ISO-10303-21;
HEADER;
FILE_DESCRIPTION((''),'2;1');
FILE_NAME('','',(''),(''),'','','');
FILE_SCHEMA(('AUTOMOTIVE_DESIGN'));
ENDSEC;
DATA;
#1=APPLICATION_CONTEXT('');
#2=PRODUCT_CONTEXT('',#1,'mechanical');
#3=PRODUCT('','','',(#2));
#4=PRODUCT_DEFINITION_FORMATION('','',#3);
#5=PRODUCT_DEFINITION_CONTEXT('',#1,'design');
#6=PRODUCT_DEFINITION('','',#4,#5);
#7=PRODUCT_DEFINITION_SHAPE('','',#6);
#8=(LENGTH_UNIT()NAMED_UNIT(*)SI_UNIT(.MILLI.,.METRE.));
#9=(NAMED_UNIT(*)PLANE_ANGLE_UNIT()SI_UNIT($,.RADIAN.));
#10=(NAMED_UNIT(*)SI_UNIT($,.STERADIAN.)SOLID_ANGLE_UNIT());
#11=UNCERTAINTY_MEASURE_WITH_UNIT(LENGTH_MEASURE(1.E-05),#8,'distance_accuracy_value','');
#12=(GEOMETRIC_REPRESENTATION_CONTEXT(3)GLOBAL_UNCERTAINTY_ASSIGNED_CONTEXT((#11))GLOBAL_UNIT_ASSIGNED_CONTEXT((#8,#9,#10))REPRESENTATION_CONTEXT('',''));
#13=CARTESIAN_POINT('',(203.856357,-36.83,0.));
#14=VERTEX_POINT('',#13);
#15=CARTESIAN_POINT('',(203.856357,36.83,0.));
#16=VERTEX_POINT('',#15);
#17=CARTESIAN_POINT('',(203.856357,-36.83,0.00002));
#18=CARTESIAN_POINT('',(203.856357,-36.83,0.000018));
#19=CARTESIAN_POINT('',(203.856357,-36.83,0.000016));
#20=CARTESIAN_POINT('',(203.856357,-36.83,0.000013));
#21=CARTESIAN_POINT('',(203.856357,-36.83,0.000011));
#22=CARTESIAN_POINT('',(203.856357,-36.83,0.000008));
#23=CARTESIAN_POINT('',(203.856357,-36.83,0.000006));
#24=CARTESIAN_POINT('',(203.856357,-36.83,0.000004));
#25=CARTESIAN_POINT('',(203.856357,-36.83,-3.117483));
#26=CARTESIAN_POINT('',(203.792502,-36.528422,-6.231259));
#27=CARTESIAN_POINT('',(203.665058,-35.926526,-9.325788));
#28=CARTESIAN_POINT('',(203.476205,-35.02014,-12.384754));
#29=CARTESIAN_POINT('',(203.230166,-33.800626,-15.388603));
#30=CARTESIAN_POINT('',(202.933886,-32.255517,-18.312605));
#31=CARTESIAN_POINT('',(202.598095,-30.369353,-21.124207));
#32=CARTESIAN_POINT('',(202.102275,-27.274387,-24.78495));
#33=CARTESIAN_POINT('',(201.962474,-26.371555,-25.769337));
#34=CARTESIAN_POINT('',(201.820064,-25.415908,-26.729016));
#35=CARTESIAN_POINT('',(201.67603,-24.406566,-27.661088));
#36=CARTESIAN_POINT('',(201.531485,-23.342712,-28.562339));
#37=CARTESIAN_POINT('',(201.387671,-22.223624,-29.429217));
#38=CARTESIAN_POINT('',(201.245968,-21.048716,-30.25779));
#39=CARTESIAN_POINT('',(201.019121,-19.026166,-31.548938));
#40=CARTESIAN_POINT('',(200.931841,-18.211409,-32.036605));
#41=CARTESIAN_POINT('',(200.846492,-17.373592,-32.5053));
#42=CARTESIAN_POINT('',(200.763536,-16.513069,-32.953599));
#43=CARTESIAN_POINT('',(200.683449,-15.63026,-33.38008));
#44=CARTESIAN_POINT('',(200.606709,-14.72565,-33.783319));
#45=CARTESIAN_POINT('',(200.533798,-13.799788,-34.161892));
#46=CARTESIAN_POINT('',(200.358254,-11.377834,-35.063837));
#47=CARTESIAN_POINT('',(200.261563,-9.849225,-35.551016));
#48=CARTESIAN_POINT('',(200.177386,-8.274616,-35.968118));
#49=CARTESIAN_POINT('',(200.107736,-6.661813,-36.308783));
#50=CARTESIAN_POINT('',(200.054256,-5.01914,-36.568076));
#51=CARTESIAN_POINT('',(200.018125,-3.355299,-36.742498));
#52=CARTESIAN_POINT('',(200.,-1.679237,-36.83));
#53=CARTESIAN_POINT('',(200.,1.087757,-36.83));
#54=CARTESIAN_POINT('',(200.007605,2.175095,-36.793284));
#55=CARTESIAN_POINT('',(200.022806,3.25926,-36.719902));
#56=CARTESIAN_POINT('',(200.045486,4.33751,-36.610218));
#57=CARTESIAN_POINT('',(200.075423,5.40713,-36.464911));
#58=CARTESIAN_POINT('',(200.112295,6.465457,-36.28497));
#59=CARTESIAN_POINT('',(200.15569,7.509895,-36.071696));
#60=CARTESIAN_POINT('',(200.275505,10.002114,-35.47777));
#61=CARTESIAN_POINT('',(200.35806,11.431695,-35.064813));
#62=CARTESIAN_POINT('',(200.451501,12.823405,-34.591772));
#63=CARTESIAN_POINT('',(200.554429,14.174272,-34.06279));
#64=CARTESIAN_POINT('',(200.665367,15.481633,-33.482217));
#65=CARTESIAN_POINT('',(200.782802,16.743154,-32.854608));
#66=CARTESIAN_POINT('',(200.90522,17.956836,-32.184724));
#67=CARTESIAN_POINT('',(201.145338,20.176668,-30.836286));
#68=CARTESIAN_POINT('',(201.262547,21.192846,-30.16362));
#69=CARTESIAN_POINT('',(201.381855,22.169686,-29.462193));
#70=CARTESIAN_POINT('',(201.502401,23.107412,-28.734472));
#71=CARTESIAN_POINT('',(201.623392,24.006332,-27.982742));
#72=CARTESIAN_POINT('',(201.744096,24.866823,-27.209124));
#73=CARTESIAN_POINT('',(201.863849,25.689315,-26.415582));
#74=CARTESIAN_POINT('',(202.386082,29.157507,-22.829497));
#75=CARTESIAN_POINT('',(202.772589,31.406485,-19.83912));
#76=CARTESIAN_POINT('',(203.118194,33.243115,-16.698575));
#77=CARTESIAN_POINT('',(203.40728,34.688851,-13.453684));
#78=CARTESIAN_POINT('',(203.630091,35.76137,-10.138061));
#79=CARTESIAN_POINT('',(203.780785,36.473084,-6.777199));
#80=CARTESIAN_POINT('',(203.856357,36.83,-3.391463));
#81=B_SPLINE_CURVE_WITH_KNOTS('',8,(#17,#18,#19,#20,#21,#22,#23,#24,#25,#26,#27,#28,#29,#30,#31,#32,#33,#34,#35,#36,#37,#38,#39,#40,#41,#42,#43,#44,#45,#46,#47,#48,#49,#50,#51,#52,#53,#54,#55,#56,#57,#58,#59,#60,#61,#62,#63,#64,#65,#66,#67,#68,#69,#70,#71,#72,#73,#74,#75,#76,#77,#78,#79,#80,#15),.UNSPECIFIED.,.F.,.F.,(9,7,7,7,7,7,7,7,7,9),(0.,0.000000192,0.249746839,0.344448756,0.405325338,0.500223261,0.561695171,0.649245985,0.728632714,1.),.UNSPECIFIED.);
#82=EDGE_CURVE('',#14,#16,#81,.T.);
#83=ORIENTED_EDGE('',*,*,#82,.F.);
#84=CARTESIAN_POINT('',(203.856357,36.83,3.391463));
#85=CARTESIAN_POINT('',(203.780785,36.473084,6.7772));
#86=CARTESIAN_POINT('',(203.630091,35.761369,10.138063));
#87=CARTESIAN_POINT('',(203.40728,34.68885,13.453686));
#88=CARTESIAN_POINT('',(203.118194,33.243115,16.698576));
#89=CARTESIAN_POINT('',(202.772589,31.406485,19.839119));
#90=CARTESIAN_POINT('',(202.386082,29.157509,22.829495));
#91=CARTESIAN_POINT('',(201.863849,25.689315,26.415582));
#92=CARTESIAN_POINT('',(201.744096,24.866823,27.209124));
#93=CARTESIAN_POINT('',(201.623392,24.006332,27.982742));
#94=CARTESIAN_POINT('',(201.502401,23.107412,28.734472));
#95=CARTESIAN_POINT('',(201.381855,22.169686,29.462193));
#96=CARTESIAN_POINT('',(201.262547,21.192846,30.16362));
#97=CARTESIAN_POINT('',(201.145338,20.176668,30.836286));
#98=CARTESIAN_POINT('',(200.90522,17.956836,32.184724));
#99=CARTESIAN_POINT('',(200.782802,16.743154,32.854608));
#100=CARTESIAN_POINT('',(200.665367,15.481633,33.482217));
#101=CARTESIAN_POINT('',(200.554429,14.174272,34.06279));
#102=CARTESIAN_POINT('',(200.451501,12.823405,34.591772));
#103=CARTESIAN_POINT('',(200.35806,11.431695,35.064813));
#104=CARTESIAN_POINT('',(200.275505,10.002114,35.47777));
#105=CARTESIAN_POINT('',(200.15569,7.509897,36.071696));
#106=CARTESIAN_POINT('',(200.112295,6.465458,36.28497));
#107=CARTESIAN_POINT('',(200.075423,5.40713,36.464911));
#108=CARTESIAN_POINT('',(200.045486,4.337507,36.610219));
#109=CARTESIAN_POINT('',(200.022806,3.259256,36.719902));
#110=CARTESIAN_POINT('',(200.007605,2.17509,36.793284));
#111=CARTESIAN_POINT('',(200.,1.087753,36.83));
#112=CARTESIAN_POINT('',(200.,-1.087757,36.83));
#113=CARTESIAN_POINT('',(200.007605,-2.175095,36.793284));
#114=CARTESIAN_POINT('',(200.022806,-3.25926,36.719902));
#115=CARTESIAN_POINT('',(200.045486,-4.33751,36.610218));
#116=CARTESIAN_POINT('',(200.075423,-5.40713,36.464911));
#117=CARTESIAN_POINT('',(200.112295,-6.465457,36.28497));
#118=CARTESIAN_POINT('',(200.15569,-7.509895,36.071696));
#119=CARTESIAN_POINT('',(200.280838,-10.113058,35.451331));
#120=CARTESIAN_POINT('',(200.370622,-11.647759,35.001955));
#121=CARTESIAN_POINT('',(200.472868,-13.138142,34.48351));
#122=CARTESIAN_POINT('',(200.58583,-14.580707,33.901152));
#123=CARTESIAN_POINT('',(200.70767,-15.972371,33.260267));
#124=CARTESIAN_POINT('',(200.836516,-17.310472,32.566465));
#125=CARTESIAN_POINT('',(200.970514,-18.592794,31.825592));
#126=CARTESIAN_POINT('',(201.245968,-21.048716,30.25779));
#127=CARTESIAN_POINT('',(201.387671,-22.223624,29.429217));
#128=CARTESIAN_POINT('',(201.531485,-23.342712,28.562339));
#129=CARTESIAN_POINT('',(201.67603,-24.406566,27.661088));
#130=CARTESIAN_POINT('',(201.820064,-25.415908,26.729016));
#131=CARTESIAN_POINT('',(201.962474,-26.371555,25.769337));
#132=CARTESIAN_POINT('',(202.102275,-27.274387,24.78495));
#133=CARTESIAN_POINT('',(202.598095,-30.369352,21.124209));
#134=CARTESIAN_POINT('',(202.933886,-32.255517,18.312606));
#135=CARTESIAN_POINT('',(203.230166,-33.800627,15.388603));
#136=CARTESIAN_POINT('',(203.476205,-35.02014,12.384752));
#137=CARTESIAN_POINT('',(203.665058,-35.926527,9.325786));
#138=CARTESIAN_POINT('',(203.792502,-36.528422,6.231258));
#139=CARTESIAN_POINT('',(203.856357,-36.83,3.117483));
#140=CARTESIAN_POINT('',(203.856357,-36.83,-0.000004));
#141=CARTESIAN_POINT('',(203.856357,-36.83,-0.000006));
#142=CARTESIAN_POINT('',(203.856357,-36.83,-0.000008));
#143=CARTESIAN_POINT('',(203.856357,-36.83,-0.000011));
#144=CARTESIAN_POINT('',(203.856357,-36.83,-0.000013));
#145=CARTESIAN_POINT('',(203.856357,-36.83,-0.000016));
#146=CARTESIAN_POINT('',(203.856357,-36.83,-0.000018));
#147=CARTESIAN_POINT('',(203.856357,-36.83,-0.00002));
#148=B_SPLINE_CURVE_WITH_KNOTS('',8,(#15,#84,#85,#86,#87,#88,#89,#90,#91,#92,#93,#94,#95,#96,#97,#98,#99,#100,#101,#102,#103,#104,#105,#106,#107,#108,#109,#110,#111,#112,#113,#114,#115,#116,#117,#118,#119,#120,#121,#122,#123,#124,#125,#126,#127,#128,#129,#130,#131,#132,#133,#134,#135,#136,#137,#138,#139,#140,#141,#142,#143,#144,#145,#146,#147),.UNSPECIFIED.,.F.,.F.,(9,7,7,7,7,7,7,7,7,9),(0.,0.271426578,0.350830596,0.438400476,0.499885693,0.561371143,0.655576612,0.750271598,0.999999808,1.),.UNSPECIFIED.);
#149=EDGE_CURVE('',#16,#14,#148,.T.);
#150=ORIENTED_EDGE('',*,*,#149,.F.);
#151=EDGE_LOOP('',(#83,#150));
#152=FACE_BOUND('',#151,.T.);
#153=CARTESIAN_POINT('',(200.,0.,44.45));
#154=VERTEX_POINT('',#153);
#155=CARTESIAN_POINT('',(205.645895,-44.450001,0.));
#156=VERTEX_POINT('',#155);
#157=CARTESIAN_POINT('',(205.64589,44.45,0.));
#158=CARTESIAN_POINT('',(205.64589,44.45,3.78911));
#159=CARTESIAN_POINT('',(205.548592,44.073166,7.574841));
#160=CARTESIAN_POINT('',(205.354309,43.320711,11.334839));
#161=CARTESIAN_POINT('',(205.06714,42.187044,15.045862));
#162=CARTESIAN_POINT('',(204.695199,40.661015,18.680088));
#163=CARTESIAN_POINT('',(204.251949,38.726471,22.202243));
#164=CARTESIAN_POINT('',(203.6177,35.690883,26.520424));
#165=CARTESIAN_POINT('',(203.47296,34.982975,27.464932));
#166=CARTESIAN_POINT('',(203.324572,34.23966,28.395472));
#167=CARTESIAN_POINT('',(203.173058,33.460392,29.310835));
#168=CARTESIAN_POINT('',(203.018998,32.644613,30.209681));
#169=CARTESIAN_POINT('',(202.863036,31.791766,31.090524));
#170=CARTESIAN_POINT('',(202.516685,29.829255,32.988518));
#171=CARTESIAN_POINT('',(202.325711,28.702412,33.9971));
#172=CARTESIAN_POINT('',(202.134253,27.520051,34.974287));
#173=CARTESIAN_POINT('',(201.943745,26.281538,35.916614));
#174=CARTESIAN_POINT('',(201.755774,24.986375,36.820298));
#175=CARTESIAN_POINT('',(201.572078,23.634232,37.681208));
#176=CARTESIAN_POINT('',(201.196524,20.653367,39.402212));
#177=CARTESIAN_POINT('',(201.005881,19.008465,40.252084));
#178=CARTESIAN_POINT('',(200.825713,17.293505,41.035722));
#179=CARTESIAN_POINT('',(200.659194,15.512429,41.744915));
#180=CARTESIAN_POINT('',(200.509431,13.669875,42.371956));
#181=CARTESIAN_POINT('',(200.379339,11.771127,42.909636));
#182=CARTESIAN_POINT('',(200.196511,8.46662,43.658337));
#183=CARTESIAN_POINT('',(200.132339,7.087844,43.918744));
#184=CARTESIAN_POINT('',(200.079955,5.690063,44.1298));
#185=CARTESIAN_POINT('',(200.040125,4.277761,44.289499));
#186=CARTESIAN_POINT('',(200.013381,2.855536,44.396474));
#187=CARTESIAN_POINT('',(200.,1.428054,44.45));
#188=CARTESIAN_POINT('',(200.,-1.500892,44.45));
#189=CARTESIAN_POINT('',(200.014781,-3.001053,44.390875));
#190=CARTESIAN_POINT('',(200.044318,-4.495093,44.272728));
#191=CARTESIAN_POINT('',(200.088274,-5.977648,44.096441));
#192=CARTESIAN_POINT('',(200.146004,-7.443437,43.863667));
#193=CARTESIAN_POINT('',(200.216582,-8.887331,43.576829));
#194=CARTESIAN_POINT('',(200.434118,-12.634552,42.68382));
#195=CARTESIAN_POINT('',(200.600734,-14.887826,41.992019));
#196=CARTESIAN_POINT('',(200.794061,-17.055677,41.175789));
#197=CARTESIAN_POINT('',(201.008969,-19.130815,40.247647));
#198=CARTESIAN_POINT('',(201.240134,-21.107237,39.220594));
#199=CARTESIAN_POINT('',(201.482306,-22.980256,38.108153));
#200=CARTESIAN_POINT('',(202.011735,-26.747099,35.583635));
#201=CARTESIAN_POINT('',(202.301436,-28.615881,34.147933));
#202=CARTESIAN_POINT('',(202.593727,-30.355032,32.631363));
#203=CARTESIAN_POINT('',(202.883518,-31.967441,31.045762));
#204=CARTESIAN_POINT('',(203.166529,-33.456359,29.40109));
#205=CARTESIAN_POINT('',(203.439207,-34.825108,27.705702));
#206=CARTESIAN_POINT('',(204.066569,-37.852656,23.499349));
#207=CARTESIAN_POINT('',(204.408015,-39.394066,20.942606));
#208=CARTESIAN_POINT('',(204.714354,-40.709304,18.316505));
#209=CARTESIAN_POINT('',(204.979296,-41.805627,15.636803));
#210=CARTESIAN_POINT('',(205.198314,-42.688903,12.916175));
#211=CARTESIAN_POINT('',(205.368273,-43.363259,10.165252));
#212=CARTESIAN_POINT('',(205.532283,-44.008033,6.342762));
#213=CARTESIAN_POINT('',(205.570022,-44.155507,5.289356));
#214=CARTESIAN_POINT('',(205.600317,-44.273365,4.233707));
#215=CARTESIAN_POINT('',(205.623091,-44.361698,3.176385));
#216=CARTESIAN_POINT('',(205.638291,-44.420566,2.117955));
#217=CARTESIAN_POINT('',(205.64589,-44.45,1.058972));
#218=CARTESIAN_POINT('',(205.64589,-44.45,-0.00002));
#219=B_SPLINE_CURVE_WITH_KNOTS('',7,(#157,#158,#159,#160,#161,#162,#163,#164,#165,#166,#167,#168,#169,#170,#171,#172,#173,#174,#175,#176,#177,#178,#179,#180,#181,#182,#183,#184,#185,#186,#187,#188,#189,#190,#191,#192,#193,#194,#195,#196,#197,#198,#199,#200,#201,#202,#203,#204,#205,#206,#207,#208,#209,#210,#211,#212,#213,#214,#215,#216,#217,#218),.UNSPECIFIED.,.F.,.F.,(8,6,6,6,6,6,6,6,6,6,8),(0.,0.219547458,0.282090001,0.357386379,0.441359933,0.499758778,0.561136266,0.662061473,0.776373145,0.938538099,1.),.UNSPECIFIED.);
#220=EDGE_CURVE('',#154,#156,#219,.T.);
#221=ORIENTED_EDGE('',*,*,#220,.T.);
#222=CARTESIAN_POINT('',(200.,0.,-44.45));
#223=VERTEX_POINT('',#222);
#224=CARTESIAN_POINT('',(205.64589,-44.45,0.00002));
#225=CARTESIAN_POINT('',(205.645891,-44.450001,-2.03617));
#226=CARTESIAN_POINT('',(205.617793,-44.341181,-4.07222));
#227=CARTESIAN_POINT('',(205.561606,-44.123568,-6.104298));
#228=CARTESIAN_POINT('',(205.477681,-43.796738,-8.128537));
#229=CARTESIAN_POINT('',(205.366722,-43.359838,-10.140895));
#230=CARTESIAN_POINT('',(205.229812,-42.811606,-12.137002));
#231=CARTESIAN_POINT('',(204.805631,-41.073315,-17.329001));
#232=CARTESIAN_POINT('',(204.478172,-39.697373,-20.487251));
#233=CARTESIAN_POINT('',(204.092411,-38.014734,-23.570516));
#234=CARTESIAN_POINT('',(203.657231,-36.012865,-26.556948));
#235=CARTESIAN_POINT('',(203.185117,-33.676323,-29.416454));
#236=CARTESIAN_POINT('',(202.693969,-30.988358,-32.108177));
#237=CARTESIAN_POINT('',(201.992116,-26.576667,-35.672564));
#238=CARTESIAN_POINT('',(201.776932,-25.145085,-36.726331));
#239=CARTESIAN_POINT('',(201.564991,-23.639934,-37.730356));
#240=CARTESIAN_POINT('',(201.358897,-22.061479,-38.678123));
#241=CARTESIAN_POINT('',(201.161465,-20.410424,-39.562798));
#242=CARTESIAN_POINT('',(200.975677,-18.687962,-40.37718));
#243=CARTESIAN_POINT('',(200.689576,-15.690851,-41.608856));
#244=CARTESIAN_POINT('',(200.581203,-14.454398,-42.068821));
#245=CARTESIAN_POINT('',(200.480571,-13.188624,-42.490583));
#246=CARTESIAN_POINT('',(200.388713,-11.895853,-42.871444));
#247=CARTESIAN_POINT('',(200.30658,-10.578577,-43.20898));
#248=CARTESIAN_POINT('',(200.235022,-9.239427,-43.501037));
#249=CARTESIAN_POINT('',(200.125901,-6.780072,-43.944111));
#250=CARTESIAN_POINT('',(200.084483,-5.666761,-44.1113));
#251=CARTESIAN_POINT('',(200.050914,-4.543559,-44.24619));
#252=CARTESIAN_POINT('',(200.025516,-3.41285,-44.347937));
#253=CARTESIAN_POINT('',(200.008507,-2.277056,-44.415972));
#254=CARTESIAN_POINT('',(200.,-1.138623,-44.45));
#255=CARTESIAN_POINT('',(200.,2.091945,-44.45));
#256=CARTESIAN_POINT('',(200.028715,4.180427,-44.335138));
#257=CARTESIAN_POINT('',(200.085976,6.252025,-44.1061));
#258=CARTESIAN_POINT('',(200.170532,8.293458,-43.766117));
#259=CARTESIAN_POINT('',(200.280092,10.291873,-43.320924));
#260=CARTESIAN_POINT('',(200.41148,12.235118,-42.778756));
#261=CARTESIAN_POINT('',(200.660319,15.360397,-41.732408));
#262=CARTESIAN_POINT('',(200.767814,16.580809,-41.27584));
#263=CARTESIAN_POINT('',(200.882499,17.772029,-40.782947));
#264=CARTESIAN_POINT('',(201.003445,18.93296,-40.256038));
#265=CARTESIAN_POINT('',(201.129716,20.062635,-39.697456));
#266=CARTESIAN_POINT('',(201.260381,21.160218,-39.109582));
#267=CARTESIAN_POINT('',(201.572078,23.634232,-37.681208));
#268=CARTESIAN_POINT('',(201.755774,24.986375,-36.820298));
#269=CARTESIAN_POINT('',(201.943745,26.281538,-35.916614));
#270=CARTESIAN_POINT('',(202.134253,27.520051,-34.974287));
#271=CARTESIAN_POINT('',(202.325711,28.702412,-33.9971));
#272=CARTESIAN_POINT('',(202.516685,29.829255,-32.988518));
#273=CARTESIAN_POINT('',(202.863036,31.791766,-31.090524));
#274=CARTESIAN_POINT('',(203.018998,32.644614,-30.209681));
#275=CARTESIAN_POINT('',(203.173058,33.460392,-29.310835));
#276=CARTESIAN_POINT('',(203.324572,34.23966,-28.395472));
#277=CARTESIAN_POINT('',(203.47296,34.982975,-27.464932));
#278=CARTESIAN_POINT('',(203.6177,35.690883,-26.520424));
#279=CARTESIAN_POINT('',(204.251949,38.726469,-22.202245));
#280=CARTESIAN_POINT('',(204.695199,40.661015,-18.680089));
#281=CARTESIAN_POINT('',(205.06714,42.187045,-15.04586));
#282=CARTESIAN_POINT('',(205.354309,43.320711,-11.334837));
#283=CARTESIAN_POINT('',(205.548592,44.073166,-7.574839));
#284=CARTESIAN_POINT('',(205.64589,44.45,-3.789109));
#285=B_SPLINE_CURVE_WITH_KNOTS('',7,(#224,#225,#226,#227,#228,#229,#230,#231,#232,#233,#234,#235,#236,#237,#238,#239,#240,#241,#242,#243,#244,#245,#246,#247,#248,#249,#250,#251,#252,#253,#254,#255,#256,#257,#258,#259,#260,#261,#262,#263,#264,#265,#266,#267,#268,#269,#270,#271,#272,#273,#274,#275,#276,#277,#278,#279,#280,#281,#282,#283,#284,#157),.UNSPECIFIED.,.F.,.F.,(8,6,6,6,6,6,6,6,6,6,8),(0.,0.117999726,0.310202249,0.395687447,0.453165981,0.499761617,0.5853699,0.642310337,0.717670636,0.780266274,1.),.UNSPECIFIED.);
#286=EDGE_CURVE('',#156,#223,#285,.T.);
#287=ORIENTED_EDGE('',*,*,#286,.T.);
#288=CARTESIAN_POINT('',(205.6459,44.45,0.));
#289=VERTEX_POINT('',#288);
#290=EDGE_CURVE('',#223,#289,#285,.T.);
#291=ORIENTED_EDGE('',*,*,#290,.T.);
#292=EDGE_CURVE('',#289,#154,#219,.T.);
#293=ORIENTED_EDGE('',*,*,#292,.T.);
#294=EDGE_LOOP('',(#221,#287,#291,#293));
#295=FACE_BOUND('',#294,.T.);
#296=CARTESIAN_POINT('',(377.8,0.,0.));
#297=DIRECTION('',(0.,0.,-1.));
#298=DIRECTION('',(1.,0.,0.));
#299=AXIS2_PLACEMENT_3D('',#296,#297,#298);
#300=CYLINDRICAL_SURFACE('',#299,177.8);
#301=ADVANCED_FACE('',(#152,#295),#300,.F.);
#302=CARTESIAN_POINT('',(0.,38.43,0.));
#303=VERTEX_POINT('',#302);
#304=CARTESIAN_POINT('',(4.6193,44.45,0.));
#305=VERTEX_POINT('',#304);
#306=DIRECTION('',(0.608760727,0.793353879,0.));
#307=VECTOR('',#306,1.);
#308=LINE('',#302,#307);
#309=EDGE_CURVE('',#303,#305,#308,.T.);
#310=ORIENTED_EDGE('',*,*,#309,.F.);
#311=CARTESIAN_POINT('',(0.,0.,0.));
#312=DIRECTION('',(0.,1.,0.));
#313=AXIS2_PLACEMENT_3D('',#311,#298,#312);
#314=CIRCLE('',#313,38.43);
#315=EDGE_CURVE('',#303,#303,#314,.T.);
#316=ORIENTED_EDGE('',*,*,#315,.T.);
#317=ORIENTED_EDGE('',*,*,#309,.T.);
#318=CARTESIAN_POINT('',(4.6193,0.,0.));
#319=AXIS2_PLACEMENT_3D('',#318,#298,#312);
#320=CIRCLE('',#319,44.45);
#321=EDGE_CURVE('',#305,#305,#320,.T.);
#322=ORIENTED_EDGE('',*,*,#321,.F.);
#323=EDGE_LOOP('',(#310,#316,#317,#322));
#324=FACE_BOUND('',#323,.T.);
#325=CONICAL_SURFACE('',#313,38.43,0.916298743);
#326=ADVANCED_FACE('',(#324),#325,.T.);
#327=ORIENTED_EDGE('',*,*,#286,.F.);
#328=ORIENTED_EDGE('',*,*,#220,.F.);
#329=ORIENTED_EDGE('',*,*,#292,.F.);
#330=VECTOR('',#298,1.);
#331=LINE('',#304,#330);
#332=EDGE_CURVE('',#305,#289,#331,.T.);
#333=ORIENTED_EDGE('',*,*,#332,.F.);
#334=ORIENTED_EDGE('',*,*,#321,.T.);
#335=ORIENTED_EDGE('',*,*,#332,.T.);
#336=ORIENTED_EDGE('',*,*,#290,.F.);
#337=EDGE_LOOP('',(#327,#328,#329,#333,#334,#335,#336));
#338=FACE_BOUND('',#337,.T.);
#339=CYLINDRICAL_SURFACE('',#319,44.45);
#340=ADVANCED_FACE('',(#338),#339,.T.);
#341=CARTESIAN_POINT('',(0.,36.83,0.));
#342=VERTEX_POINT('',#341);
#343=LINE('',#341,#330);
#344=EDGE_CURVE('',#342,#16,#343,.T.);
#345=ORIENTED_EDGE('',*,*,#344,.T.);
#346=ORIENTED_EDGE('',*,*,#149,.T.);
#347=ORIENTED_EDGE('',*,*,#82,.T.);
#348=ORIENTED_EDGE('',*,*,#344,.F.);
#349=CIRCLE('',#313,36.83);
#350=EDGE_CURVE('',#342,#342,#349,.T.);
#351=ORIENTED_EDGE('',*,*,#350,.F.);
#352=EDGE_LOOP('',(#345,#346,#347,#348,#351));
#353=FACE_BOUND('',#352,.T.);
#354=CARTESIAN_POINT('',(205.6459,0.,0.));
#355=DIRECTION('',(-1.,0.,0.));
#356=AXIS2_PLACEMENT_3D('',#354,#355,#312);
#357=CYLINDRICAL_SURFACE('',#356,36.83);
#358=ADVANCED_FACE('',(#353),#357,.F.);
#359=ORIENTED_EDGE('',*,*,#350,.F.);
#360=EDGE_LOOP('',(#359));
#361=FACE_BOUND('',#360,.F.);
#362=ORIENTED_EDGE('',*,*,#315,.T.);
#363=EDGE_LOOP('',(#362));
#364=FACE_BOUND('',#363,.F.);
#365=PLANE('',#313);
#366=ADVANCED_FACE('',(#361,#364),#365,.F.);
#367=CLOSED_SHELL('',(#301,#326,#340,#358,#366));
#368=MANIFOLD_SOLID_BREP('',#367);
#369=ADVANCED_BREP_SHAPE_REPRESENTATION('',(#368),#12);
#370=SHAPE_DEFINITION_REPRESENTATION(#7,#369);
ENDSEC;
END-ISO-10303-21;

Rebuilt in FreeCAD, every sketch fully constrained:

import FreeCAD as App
import Part
import Sketcher
from FreeCAD import Vector
Q = App.Units.Quantity

doc = App.newDocument("Part")
body = doc.addObject("PartDesign::Body", "Body")

sketch1 = body.newObject("Sketcher::SketchObject", "Sketch")
sketch1.AttachmentSupport = (doc.getObject("XY_Plane"), [""])
sketch1.MapMode = "FlatFace"
sketch1.addGeometry([
    Part.LineSegment(Vector(4.6, 44.5, 0), Vector(0, 38.4, 0)),
    Part.LineSegment(Vector(0, 38.4, 0), Vector(0, 36.8, 0)),
    Part.LineSegment(Vector(0, 36.8, 0), Vector(205.6, 36.8, 0)),
    Part.LineSegment(Vector(205.6, 36.8, 0), Vector(205.6, 44.5, 0)),
    Part.LineSegment(Vector(205.6, 44.5, 0), Vector(4.6, 44.5, 0)),
], False)
sketch1.addConstraint([
    Sketcher.Constraint("Coincident", 0, 2, 1, 1),
    Sketcher.Constraint("Coincident", 1, 2, 2, 1),
    Sketcher.Constraint("Coincident", 2, 2, 3, 1),
    Sketcher.Constraint("Coincident", 3, 2, 4, 1),
    Sketcher.Constraint("Coincident", 4, 2, 0, 1),
    Sketcher.Constraint("Vertical", 1),
    Sketcher.Constraint("Horizontal", 2),
    Sketcher.Constraint("Vertical", 3),
    Sketcher.Constraint("Horizontal", 4),
    Sketcher.Constraint("PointOnObject", 0, 2, -2),
    Sketcher.Constraint("DistanceY", 1, 2, 1, 1, Q("0.063 in")),
    Sketcher.Constraint("DistanceY", 3, 1, 3, 2, Q("0.3 in")),
    Sketcher.Constraint("Angle", 0, Q("-127.5 deg")),
    Sketcher.Constraint("DistanceY", -1, 1, 1, 2, Q("1.45 in")),
    Sketcher.Constraint("DistanceX", 2, 1, 2, 2, Q("8.0963 in")),
])
revolution = body.newObject("PartDesign::Revolution", "Revolution")
revolution.Profile = sketch1
revolution.ReferenceAxis = (sketch1, ["H_Axis"])
revolution.Angle = 360

sketch2 = body.newObject("Sketcher::SketchObject", "Sketch001")
sketch2.AttachmentSupport = (doc.getObject("XY_Plane"), [""])
sketch2.MapMode = "FlatFace"
sketch2.addGeometry(Part.Circle(Vector(378, 0, 0), Vector(0, 0, 1), 178), False)
sketch2.addConstraint([
    Sketcher.Constraint("PointOnObject", 0, 3, -1),
    Sketcher.Constraint("Diameter", 0, Q("14 in")),
    Sketcher.Constraint("DistanceX", -1, 1, 0, 3, 377.8),
])
pocket1 = body.newObject("PartDesign::Pocket", "Pocket")
pocket1.Profile = sketch2
pocket1.Length = Q("3.5 in")
pocket1.Midplane = True

doc.recompute()
